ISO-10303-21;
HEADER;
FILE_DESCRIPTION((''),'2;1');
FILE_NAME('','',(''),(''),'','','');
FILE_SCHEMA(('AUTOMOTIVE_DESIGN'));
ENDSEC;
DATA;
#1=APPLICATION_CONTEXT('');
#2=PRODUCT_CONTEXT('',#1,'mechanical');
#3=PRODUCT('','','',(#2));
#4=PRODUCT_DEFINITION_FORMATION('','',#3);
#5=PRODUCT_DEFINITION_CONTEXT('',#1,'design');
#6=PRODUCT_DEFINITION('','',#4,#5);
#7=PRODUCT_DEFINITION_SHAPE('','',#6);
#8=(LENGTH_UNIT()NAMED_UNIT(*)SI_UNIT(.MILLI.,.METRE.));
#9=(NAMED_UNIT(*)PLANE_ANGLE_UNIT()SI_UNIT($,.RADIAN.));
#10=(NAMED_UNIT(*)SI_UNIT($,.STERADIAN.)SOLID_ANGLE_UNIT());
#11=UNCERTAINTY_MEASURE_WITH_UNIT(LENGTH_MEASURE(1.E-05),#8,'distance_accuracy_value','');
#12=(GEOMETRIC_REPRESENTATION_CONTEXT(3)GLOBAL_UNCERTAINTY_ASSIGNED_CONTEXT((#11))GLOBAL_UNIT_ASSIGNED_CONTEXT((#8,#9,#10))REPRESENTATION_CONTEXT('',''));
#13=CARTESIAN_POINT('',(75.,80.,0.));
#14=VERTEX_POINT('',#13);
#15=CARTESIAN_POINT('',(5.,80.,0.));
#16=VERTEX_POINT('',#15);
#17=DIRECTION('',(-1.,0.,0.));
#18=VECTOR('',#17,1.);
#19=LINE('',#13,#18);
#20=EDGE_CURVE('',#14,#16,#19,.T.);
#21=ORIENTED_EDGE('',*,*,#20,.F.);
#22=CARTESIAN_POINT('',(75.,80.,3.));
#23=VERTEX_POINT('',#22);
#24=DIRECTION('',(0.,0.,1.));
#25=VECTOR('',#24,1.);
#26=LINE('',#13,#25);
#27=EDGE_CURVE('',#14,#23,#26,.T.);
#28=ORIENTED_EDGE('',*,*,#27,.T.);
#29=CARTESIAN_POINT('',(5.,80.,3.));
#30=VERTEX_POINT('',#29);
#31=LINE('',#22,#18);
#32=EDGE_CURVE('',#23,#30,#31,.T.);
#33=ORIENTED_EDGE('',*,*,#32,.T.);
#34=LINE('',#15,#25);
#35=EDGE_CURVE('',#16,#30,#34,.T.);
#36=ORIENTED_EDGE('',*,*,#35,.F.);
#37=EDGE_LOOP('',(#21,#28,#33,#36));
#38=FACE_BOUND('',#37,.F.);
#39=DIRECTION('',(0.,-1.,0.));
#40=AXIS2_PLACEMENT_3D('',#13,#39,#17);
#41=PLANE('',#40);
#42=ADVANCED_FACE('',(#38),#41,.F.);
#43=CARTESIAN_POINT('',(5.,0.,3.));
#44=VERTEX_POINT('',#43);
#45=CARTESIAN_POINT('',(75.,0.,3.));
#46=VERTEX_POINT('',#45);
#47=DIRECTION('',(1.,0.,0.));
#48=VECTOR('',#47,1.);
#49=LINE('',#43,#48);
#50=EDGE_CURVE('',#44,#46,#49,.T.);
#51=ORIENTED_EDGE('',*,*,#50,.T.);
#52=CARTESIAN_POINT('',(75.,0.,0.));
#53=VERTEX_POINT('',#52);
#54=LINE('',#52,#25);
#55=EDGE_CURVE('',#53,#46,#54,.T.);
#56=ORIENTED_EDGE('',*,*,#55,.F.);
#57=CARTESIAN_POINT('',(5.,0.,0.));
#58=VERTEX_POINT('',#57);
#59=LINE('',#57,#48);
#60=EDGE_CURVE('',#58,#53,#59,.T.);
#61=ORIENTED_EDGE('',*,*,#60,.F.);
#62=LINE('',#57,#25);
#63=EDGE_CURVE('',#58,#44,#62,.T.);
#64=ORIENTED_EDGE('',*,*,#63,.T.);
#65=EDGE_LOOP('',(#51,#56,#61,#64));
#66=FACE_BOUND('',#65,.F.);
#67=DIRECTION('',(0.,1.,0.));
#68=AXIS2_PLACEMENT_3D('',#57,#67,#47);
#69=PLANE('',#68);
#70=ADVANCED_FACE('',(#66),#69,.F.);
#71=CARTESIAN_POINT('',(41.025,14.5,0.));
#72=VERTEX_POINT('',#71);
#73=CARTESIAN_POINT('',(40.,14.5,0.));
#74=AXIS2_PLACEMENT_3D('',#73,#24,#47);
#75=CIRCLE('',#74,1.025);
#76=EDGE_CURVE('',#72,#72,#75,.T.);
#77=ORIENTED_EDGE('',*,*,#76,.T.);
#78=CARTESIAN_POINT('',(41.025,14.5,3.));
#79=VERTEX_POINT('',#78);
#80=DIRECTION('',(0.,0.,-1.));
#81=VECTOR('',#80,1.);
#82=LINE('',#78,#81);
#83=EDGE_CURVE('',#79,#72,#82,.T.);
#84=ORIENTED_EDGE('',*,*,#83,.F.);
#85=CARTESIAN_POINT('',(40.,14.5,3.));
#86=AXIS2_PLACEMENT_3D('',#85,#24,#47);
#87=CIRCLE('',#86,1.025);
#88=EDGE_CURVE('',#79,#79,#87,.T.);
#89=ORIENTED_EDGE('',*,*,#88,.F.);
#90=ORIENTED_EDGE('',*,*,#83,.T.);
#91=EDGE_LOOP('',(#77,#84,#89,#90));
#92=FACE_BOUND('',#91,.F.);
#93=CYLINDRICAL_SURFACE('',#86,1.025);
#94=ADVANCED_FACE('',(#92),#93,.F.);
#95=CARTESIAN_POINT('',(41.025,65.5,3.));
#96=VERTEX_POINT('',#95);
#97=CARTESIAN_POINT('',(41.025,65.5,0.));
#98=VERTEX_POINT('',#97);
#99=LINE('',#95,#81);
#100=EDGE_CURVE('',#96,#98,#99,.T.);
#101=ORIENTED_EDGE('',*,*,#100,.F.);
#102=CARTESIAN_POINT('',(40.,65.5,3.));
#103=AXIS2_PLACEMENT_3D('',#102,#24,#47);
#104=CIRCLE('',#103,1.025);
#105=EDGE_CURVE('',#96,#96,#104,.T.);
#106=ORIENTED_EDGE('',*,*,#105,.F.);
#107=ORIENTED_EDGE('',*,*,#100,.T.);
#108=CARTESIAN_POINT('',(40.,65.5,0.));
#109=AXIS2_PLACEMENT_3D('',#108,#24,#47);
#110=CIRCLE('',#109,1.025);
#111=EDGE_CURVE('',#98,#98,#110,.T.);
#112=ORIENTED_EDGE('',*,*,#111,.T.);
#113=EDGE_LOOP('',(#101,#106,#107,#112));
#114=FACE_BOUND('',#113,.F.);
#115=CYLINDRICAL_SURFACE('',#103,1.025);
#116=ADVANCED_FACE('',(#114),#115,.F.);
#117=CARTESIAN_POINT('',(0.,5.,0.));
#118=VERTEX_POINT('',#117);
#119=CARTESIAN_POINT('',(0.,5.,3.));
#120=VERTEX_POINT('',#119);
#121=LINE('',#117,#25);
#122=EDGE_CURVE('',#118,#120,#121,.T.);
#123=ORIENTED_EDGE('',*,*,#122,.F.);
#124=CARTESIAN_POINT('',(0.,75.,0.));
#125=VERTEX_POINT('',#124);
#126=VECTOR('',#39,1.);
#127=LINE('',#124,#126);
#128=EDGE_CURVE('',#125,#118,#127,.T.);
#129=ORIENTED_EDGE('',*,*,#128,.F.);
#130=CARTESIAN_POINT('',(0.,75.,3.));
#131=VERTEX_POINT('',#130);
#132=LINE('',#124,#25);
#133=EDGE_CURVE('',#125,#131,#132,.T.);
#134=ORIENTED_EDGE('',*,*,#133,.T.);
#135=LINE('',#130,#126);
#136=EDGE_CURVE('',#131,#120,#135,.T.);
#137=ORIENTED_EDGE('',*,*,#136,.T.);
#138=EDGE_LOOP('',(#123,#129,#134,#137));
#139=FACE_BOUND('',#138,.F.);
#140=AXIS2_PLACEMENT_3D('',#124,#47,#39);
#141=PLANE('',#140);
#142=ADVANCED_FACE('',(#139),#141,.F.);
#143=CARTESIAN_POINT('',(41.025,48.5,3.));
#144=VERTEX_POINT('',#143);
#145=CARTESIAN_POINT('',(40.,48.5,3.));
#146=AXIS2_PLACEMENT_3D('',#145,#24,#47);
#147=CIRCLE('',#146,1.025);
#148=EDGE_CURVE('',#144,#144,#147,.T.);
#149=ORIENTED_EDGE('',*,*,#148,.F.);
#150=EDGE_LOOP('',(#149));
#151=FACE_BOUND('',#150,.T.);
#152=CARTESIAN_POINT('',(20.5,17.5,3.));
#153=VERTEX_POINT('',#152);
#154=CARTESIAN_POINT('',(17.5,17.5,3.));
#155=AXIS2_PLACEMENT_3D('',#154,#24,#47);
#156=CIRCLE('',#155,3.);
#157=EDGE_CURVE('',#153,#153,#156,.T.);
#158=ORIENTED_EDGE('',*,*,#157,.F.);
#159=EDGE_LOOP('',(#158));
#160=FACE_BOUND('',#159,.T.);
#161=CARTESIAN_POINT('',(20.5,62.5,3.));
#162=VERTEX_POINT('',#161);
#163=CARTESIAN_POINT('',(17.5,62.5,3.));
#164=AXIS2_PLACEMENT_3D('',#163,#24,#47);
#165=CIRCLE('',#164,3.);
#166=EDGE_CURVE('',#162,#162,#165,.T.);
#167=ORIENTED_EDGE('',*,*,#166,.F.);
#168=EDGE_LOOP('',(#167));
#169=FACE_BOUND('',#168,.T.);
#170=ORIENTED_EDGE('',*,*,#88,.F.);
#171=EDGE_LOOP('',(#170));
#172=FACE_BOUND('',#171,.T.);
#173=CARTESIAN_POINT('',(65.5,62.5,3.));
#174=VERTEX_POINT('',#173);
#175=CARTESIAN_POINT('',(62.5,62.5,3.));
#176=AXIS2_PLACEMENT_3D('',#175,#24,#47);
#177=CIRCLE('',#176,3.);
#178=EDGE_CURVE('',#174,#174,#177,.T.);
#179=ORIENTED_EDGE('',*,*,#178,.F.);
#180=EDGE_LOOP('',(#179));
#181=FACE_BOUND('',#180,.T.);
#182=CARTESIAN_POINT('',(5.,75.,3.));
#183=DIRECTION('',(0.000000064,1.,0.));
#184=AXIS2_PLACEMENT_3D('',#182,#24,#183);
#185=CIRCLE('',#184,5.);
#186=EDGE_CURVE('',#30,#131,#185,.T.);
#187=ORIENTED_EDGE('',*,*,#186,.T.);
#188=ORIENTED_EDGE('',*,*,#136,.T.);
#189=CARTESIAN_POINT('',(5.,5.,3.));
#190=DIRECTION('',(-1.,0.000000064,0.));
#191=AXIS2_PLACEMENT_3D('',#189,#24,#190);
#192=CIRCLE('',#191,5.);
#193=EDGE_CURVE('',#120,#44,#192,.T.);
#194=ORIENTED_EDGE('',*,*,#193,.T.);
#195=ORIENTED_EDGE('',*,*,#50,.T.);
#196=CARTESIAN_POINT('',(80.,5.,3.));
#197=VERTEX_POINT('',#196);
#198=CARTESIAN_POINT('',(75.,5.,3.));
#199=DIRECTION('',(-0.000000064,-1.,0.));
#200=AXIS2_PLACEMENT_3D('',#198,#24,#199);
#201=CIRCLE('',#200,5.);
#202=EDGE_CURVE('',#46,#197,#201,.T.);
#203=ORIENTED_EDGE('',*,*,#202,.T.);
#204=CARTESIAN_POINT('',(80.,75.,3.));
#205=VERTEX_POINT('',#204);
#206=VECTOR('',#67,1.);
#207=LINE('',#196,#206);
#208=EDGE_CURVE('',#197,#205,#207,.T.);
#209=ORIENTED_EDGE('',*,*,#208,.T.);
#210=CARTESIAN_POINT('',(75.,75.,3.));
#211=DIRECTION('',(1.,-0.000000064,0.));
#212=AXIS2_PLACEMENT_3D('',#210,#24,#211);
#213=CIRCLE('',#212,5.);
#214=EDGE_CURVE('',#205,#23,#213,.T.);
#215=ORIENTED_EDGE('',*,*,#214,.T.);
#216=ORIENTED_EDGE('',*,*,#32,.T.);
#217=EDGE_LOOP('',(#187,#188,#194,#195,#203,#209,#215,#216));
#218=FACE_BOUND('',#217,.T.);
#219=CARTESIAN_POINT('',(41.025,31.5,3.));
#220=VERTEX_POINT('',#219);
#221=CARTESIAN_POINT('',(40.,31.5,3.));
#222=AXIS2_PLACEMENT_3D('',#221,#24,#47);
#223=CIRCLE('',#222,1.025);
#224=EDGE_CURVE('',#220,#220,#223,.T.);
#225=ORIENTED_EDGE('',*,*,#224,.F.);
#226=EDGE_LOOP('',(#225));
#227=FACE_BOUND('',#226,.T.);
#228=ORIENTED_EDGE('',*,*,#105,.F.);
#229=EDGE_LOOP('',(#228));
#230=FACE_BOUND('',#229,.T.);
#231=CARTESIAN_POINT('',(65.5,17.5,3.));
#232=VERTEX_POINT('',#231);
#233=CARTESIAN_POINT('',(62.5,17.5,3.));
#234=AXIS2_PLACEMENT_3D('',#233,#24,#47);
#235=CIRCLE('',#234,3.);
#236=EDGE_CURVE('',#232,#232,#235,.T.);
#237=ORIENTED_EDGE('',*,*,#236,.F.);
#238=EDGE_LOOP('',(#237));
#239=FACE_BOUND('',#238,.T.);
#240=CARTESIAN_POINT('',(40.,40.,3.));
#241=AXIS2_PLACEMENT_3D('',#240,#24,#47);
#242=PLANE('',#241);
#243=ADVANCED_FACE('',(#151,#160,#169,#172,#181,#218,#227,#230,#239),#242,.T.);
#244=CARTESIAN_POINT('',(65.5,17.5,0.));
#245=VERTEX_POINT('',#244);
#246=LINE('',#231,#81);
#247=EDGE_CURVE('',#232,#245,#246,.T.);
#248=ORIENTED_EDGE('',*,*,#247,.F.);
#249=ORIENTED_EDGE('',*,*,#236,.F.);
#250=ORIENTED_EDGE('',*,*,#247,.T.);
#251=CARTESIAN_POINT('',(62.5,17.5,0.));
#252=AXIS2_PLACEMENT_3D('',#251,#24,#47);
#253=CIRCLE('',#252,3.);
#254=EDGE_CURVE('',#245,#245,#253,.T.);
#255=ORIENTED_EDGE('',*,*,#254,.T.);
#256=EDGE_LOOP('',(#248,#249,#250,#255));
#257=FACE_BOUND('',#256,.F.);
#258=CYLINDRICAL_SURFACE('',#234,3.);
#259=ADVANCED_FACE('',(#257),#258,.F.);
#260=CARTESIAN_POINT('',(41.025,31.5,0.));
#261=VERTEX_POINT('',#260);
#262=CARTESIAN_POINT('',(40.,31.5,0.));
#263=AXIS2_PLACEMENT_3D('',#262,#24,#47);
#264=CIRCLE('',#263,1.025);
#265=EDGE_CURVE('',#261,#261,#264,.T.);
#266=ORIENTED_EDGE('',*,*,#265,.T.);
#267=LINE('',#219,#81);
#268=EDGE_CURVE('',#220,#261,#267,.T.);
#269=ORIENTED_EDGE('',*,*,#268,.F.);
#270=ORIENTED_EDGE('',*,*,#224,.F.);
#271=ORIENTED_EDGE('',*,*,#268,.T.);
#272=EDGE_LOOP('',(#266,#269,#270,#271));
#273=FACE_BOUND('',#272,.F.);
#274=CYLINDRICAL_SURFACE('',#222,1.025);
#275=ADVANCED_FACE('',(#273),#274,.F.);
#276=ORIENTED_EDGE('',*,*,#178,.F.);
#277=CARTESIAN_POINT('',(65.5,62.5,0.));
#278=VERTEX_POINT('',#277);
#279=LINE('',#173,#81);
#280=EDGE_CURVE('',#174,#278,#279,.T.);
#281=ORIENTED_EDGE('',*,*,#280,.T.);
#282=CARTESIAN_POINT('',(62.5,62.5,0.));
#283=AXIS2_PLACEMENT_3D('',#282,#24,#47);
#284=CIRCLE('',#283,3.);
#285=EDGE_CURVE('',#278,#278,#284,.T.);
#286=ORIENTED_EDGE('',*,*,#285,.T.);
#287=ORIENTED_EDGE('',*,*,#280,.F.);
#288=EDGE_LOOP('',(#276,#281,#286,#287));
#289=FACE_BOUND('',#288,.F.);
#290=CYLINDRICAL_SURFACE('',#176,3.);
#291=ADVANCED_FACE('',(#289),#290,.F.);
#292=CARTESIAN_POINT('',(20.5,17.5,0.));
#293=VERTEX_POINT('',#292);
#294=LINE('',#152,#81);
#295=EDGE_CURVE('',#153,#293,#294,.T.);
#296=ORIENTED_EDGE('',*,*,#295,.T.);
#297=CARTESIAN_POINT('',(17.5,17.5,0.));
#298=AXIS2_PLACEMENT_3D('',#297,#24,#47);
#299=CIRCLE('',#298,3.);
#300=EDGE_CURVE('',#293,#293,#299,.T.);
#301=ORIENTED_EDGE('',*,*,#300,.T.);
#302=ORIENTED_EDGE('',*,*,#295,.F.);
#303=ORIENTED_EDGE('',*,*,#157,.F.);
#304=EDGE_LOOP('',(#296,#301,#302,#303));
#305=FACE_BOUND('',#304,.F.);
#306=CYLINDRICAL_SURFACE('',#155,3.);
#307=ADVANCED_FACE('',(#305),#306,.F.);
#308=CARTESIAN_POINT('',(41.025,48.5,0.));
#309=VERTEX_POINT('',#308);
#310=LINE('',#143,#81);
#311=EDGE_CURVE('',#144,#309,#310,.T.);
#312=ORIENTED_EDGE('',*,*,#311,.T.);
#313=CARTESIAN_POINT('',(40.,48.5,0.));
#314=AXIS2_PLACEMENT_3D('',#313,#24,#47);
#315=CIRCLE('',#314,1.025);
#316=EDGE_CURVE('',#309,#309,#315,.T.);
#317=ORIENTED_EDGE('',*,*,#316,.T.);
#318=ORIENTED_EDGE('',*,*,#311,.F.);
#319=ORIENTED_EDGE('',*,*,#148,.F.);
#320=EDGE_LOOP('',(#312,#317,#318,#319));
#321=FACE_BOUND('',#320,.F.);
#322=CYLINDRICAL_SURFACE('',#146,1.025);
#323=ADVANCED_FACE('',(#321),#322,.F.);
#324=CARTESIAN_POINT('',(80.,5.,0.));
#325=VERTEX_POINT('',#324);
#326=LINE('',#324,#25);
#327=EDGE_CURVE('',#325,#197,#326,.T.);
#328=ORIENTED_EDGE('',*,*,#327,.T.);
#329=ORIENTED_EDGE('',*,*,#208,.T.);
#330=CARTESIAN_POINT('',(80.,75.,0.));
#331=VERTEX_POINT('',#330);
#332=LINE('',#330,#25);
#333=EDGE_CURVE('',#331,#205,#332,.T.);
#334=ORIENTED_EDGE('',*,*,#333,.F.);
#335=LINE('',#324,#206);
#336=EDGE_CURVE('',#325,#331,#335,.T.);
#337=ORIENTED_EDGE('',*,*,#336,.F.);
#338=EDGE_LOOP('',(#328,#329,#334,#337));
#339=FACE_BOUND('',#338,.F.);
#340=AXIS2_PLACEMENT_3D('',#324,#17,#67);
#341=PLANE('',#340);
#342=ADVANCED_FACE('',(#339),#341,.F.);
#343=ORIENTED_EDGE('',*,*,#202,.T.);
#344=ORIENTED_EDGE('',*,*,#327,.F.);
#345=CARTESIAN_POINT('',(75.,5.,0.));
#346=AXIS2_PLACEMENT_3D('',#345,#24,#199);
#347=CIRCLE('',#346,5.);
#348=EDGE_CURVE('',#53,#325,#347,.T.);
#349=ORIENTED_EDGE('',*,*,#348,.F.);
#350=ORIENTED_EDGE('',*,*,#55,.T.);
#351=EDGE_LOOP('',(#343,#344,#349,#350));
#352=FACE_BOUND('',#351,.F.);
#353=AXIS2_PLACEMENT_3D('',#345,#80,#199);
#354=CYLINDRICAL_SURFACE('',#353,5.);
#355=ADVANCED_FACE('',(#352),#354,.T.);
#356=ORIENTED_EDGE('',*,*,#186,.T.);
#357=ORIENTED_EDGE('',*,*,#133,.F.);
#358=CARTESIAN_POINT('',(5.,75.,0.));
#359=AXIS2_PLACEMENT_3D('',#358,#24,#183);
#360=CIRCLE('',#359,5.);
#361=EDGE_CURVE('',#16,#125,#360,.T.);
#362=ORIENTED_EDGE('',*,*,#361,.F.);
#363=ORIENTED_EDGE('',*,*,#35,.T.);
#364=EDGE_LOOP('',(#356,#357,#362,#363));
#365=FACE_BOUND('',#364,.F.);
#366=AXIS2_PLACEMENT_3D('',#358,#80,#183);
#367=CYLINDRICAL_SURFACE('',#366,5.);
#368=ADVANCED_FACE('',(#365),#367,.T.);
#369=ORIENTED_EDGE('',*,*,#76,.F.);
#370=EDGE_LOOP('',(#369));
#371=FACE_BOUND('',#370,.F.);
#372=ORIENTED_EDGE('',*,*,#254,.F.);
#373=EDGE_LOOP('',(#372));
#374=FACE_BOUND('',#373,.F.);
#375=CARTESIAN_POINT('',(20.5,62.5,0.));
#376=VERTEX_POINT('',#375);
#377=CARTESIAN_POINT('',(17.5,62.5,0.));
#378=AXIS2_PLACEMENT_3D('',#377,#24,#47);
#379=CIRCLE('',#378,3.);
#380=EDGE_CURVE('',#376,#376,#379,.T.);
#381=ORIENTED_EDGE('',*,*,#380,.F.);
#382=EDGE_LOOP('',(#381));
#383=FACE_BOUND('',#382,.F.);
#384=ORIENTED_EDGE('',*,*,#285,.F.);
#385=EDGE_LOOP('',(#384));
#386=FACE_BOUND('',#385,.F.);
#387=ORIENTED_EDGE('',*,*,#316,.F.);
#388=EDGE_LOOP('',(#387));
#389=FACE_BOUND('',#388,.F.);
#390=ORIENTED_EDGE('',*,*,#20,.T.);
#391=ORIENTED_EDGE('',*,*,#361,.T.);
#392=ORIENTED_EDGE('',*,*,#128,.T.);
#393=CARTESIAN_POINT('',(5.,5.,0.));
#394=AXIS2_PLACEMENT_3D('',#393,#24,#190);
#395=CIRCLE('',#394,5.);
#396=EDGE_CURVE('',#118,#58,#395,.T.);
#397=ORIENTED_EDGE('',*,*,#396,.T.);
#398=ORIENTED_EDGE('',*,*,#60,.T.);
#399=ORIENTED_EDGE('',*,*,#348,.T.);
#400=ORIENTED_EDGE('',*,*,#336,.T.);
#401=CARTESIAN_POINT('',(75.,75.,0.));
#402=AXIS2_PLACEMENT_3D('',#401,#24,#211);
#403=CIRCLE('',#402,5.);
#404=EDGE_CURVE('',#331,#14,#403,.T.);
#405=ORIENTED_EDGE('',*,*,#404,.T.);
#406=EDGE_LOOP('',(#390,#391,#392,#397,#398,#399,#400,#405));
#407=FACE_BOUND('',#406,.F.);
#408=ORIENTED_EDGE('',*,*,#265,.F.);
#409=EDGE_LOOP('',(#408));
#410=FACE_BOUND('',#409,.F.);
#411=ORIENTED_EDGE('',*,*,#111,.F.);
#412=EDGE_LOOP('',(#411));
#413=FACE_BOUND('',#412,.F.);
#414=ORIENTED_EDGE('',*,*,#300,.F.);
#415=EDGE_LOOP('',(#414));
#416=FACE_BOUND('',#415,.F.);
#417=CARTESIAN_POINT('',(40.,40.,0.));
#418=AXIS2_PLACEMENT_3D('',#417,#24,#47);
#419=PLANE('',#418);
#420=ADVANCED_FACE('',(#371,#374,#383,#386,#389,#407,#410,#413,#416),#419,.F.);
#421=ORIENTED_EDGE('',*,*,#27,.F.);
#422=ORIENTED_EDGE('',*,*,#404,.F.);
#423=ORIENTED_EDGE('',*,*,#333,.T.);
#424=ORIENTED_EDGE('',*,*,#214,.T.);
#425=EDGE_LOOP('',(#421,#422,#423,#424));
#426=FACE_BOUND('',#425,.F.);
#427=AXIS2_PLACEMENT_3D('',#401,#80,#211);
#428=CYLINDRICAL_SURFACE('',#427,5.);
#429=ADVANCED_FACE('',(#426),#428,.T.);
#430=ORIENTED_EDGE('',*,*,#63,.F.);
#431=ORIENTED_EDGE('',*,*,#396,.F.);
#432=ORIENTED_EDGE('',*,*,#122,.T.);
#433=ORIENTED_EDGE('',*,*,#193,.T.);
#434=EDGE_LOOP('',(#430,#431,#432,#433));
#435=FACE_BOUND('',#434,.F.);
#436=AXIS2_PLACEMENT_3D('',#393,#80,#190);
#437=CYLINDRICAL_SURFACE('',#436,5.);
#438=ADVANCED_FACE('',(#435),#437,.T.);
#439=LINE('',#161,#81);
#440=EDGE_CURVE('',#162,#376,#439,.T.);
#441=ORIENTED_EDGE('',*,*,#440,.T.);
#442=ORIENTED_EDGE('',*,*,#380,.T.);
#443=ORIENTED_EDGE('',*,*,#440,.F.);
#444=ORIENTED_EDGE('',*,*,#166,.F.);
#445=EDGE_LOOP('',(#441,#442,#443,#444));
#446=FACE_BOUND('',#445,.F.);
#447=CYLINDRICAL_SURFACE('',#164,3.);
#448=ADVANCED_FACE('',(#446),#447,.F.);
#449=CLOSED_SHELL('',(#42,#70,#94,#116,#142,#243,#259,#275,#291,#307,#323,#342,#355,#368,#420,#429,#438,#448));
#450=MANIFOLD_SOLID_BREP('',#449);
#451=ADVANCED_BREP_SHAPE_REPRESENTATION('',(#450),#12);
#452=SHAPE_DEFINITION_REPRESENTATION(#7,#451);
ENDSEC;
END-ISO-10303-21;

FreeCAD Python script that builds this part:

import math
import FreeCAD as App
import Part
import Sketcher

V = App.Vector

doc = App.newDocument("Part")
body = doc.addObject("PartDesign::Body", "Body")

sketch1 = body.newObject("Sketcher::SketchObject", "Sketch")
sketch1.AttachmentSupport = (doc.getObject("XY_Plane"), [""])
sketch1.MapMode = "FlatFace"
sketch1.addGeometry(Part.ArcOfCircle(Part.Circle(V(5, 5, 0), V(0, 0, 1), 5), math.radians(179.999996), math.radians(270.000004)), False)
sketch1.addGeometry(Part.LineSegment(V(5, 0, 0), V(75, 0, 0)), False)
sketch1.addGeometry(Part.ArcOfCircle(Part.Circle(V(75, 5, 0), V(0, 0, 1), 5), math.radians(-90.000004), math.radians(0.000004)), False)
sketch1.addGeometry(Part.LineSegment(V(80, 5, 0), V(80, 75, 0)), False)
sketch1.addGeometry(Part.ArcOfCircle(Part.Circle(V(75, 75, 0), V(0, 0, 1), 5), math.radians(-0.000004), math.radians(90.000004)), False)
sketch1.addGeometry(Part.LineSegment(V(75, 80, 0), V(5, 80, 0)), False)
sketch1.addGeometry(Part.ArcOfCircle(Part.Circle(V(5, 75, 0), V(0, 0, 1), 5), math.radians(89.999996), math.radians(180.000004)), False)
sketch1.addGeometry(Part.LineSegment(V(0, 75, 0), V(0, 5, 0)), False)
sketch1.addConstraint(Sketcher.Constraint("Tangent", 0, 2, 1, 1))
sketch1.addConstraint(Sketcher.Constraint("Tangent", 1, 2, 2, 1))
sketch1.addConstraint(Sketcher.Constraint("Tangent", 2, 2, 3, 1))
sketch1.addConstraint(Sketcher.Constraint("Tangent", 3, 2, 4, 1))
sketch1.addConstraint(Sketcher.Constraint("Tangent", 4, 2, 5, 1))
sketch1.addConstraint(Sketcher.Constraint("Tangent", 5, 2, 6, 1))
sketch1.addConstraint(Sketcher.Constraint("Tangent", 6, 2, 7, 1))
sketch1.addConstraint(Sketcher.Constraint("Tangent", 7, 2, 0, 1))
sketch1.addConstraint(Sketcher.Constraint("Horizontal", 1))
sketch1.addConstraint(Sketcher.Constraint("Vertical", 3))
sketch1.addConstraint(Sketcher.Constraint("Horizontal", 5))
sketch1.addConstraint(Sketcher.Constraint("Vertical", 7))
sketch1.addConstraint(Sketcher.Constraint("Equal", 0, 2))
sketch1.addConstraint(Sketcher.Constraint("Equal", 2, 4))
sketch1.addConstraint(Sketcher.Constraint("Equal", 4, 6))
sketch1.addConstraint(Sketcher.Constraint("PointOnObject", 0, 2, -1))
sketch1.addConstraint(Sketcher.Constraint("PointOnObject", 6, 2, -2))
sketch1.addConstraint(Sketcher.Constraint("Equal", 5, 3))
sketch1.addConstraint(Sketcher.Constraint("Radius", 0, 5.0))
sketch1.addConstraint(Sketcher.Constraint("DistanceX", 1, 1, 1, 2, 70.0))
pad1 = body.newObject("PartDesign::Pad", "Pad")
pad1.Profile = sketch1
pad1.Length = 3

sketch2 = body.newObject("Sketcher::SketchObject", "Sketch001")
sketch2.AttachmentSupport = (doc.getObject("XY_Plane"), [""])
sketch2.MapMode = "FlatFace"
sketch2.AttachmentOffset = App.Placement(V(0, 0, 3), App.Rotation())
sketch2.addGeometry(Part.Circle(V(40, 48.5, 0), V(0, 0, 1), 1.025), False)
sketch2.addGeometry(Part.Circle(V(40, 31.5, 0), V(0, 0, 1), 1.025), False)
sketch2.addGeometry(Part.Circle(V(62.5, 62.5, 0), V(0, 0, 1), 3), False)
sketch2.addGeometry(Part.Circle(V(40, 65.5, 0), V(0, 0, 1), 1.025), False)
sketch2.addGeometry(Part.Circle(V(40, 14.5, 0), V(0, 0, 1), 1.025), False)
sketch2.addGeometry(Part.Circle(V(62.5, 17.5, 0), V(0, 0, 1), 3), False)
sketch2.addGeometry(Part.Circle(V(17.5, 62.5, 0), V(0, 0, 1), 3), False)
sketch2.addGeometry(Part.Circle(V(17.5, 17.5, 0), V(0, 0, 1), 3), False)
sketch2.addConstraint(Sketcher.Constraint("Equal", 0, 1))
sketch2.addConstraint(Sketcher.Constraint("Equal", 1, 3))
sketch2.addConstraint(Sketcher.Constraint("Equal", 3, 4))
sketch2.addConstraint(Sketcher.Constraint("Equal", 2, 5))
sketch2.addConstraint(Sketcher.Constraint("Equal", 5, 6))
sketch2.addConstraint(Sketcher.Constraint("Equal", 6, 7))
sketch2.addConstraint(Sketcher.Constraint("Horizontal", 2, 3, 6, 3))
sketch2.addConstraint(Sketcher.Constraint("Horizontal", 5, 3, 7, 3))
sketch2.addConstraint(Sketcher.Constraint("Vertical", 0, 3, 1, 3))
sketch2.addConstraint(Sketcher.Constraint("Vertical", 1, 3, 3, 3))
sketch2.addConstraint(Sketcher.Constraint("Vertical", 3, 3, 4, 3))
sketch2.addConstraint(Sketcher.Constraint("Vertical", 2, 3, 5, 3))
sketch2.addConstraint(Sketcher.Constraint("Vertical", 6, 3, 7, 3))
sketch2.addConstraint(Sketcher.Constraint("Diameter", 2, 6.0))
sketch2.addConstraint(Sketcher.Constraint("Diameter", 0, 2.05))
sketch2.addConstraint(Sketcher.Constraint("DistanceX", -1, 1, 0, 3, 40.0))
sketch2.addConstraint(Sketcher.Constraint("DistanceY", 1, 3, 0, 3, 17.0))
sketch2.addConstraint(Sketcher.Constraint("DistanceY", 0, 3, 2, 3, 14.0))
sketch2.addConstraint(Sketcher.Constraint("DistanceY", 0, 3, 3, 3, 17.0))
sketch2.addConstraint(Sketcher.Constraint("DistanceY", 4, 3, 1, 3, 17.0))
sketch2.addConstraint(Sketcher.Constraint("DistanceY", 4, 3, 5, 3, 3.0))
sketch2.addConstraint(Sketcher.Constraint("DistanceX", 6, 3, 2, 3, 45.0))
sketch2.addConstraint(Sketcher.Constraint("DistanceY", -1, 1, 0, 3, 48.5))
sketch2.addConstraint(Sketcher.Constraint("DistanceX", -1, 1, 2, 3, 62.5))
pocket1 = body.newObject("PartDesign::Pocket", "Pocket")
pocket1.Profile = sketch2
pocket1.Length = 25

doc.recompute()
